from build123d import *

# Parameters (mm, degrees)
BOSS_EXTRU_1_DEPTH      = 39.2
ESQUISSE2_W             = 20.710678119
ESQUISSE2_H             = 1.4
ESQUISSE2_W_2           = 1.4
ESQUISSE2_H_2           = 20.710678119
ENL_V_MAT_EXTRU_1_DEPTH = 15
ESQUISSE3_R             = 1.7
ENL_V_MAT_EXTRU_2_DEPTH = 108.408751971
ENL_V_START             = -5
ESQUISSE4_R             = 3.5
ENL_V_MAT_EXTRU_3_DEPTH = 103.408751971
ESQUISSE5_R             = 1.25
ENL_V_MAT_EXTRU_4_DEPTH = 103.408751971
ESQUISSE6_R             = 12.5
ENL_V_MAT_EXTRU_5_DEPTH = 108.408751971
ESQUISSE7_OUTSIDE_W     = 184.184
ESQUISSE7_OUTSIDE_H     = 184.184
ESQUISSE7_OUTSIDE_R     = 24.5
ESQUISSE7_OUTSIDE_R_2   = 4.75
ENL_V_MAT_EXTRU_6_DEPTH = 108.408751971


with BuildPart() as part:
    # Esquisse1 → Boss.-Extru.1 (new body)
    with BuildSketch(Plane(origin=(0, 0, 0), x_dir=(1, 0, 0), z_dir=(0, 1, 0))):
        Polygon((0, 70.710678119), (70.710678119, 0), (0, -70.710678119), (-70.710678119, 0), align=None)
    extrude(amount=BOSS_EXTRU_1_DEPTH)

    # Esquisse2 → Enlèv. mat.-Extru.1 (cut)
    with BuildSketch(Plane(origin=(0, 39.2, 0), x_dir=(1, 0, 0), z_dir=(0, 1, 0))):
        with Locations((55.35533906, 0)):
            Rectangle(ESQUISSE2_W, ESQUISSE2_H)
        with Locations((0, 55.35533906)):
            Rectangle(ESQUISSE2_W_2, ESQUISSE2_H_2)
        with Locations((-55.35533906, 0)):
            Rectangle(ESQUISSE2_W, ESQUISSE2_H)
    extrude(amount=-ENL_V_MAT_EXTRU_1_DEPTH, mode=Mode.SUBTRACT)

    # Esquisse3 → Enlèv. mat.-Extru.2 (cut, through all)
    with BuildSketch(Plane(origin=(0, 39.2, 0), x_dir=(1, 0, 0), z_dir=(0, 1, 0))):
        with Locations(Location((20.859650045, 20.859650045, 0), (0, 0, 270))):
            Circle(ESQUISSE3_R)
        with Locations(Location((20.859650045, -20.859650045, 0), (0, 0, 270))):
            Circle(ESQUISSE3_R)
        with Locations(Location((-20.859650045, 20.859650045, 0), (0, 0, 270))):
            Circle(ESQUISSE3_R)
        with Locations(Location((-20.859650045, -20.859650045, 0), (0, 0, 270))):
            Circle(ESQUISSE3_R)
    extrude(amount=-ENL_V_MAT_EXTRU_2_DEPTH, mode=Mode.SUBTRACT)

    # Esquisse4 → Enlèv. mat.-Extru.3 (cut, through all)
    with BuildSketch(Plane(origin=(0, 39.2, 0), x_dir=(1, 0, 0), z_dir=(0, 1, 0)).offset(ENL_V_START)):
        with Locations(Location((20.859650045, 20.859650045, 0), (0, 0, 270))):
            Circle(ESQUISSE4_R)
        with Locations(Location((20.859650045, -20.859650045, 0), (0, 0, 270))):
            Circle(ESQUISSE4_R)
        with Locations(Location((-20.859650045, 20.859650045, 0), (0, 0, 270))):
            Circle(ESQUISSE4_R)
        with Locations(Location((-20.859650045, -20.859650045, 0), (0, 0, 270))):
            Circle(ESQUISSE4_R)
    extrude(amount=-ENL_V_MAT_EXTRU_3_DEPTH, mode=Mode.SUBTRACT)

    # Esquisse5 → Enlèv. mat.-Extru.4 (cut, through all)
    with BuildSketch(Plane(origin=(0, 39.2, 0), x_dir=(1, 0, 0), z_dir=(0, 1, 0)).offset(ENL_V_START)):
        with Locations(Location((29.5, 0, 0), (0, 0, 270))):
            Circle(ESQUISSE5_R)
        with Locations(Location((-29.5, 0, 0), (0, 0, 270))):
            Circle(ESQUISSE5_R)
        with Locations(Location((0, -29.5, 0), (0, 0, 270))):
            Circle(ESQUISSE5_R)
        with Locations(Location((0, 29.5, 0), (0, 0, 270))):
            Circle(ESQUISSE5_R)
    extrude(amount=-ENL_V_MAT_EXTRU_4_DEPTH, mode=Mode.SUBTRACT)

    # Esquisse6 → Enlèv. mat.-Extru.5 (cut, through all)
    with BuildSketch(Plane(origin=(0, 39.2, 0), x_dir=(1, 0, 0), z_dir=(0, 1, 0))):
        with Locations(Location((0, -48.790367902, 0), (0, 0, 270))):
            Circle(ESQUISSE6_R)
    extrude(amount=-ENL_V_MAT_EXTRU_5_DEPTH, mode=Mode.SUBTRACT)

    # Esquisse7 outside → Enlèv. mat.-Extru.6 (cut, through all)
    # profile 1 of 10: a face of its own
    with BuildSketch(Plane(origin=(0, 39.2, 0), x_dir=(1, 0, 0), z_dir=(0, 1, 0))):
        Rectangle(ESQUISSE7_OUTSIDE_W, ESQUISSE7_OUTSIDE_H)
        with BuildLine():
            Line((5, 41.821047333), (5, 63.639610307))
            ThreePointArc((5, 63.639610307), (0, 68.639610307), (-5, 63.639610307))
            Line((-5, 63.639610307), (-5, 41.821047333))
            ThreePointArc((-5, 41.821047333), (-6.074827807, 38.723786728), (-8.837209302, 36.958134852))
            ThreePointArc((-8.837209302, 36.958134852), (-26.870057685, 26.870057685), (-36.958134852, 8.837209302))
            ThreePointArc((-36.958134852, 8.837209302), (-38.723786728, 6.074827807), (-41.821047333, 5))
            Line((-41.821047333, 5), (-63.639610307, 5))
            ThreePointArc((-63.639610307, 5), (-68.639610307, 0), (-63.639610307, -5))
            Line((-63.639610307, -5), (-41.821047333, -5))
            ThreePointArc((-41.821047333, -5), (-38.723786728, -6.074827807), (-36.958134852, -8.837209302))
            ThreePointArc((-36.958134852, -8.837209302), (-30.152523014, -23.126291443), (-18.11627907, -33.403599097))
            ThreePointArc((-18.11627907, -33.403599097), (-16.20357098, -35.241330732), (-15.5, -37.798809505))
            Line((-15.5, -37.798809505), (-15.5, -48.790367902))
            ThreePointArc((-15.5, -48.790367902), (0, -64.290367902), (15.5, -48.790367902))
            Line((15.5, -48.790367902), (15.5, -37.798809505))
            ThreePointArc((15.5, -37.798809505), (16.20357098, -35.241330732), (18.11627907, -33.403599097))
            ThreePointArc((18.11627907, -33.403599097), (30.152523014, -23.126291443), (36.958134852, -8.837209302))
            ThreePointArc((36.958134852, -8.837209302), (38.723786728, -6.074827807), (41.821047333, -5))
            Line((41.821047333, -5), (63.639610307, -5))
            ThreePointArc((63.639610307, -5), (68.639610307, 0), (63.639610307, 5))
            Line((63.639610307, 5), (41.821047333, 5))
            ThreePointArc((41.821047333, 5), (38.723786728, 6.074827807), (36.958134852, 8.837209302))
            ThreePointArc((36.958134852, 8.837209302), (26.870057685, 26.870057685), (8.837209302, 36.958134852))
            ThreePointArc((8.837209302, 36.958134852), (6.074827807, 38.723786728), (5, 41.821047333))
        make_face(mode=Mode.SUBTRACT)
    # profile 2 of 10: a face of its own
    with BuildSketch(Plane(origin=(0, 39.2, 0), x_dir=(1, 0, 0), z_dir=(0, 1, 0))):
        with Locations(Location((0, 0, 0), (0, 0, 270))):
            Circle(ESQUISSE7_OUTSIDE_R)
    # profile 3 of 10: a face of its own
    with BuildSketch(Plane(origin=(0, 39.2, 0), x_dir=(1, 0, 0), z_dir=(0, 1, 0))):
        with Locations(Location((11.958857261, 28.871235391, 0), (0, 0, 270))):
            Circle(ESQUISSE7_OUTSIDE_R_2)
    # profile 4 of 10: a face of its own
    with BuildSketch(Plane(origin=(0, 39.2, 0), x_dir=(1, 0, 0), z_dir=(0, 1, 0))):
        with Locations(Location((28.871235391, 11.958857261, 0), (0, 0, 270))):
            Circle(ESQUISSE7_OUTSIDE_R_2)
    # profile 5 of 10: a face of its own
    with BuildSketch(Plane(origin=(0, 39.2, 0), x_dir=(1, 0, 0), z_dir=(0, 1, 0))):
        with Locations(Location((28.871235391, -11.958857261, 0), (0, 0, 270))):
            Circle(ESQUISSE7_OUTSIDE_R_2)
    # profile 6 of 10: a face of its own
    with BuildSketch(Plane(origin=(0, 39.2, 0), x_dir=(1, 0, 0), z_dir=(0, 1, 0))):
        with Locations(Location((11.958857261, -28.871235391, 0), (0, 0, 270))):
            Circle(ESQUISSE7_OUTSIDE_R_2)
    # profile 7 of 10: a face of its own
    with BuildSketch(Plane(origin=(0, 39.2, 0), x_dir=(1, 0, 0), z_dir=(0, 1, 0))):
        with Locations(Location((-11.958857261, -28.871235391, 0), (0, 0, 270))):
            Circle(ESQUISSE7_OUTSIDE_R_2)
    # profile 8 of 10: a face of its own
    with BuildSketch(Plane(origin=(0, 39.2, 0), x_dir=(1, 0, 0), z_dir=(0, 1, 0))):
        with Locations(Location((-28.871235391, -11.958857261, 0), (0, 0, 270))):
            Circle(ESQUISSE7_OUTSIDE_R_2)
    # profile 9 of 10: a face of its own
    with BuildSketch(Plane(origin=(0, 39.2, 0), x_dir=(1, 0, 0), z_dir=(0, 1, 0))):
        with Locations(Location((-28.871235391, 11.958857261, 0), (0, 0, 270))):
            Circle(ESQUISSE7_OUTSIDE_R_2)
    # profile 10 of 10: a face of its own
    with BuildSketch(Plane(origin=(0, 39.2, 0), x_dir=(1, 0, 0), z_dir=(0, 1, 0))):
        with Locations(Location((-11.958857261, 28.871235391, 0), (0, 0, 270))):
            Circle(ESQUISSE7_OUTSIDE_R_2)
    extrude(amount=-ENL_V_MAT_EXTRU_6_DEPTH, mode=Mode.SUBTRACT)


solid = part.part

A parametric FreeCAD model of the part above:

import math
import FreeCAD as App
import Part
import Sketcher
from FreeCAD import Vector

doc = App.newDocument("Part")
body = doc.addObject("PartDesign::Body", "Body")

# Sketch on XZ plane
sketch1 = body.newObject("Sketcher::SketchObject", "Sketch")
sketch1.AttachmentSupport = (doc.getObject("XZ_Plane"), [""])
sketch1.MapMode = "FlatFace"
sketch1.addGeometry([
    Part.LineSegment(Vector(71, 0, 0), Vector(0, -71, 0)),
    Part.LineSegment(Vector(0, -71, 0), Vector(-71, 0, 0)),
    Part.LineSegment(Vector(-71, 0, 0), Vector(0, 71, 0)),
    Part.LineSegment(Vector(0, 71, 0), Vector(71, 0, 0)),
], False)
sketch1.addConstraint([
    Sketcher.Constraint("Coincident", 0, 2, 1, 1),
    Sketcher.Constraint("Coincident", 1, 2, 2, 1),
    Sketcher.Constraint("Coincident", 2, 2, 3, 1),
    Sketcher.Constraint("Coincident", 3, 2, 0, 1),
    Sketcher.Constraint("Symmetric", 0, 2, 2, 2, -1, 1),
    Sketcher.Constraint("Symmetric", 1, 2, 3, 2, -1, 1),
    Sketcher.Constraint("PointOnObject", 0, 2, -2),
    Sketcher.Constraint("PointOnObject", 1, 2, -1),
    Sketcher.Constraint("Perpendicular", 0, 1),
    Sketcher.Constraint("Distance", 0, 100.0),
])
pad1 = body.newObject("PartDesign::Pad", "Pad")
pad1.Profile = sketch1
pad1.Length = 39.2
pad1.Reversed = True

# Sketch on XZ plane
sketch2 = body.newObject("Sketcher::SketchObject", "Sketch001")
sketch2.AttachmentSupport = (doc.getObject("XZ_Plane"), [""])
sketch2.MapMode = "FlatFace"
sketch2.AttachmentOffset = App.Placement(Vector(0, 0, -39.2), App.Rotation())
sketch2.addGeometry([
    Part.LineSegment(Vector(45, -0.7, 0), Vector(45, 0.7, 0)),  # 0
    Part.LineSegment(Vector(45, 0.7, 0), Vector(65.7, 0.7, 0)),  # 1
    Part.LineSegment(Vector(65.7, 0.7, 0), Vector(65.7, -0.7, 0)),  # 2
    Part.LineSegment(Vector(65.7, -0.7, 0), Vector(45, -0.7, 0)),  # 3
    Part.LineSegment(Vector(-0.7, -65.7, 0), Vector(-0.7, -45, 0)),  # 4
    Part.LineSegment(Vector(-0.7, -45, 0), Vector(0.7, -45, 0)),  # 5
    Part.LineSegment(Vector(0.7, -45, 0), Vector(0.7, -65.7, 0)),  # 6
    Part.LineSegment(Vector(0.7, -65.7, 0), Vector(-0.7, -65.7, 0)),  # 7
    Part.LineSegment(Vector(-65.7, -0.7, 0), Vector(-65.7, 0.7, 0)),  # 8
    Part.LineSegment(Vector(-65.7, 0.7, 0), Vector(-45, 0.7, 0)),  # 9
    Part.LineSegment(Vector(-45, 0.7, 0), Vector(-45, -0.7, 0)),  # 10
    Part.LineSegment(Vector(-45, -0.7, 0), Vector(-65.7, -0.7, 0)),  # 11
], False)
sketch2.addConstraint([
    Sketcher.Constraint("Coincident", 0, 2, 1, 1),
    Sketcher.Constraint("Coincident", 1, 2, 2, 1),
    Sketcher.Constraint("Coincident", 2, 2, 3, 1),
    Sketcher.Constraint("Coincident", 3, 2, 0, 1),
    Sketcher.Constraint("Coincident", 4, 2, 5, 1),
    Sketcher.Constraint("Coincident", 5, 2, 6, 1),
    Sketcher.Constraint("Coincident", 6, 2, 7, 1),
    Sketcher.Constraint("Coincident", 7, 2, 4, 1),
    Sketcher.Constraint("Coincident", 8, 2, 9, 1),
    Sketcher.Constraint("Coincident", 9, 2, 10, 1),
    Sketcher.Constraint("Coincident", 10, 2, 11, 1),
    Sketcher.Constraint("Coincident", 11, 2, 8, 1),
    Sketcher.Constraint("Vertical", 0),
    Sketcher.Constraint("Horizontal", 1),
    Sketcher.Constraint("Vertical", 2),
    Sketcher.Constraint("Horizontal", 3),
    Sketcher.Constraint("Vertical", 4),
    Sketcher.Constraint("Horizontal", 5),
    Sketcher.Constraint("Vertical", 6),
    Sketcher.Constraint("Horizontal", 7),
    Sketcher.Constraint("Vertical", 8),
    Sketcher.Constraint("Horizontal", 9),
    Sketcher.Constraint("Vertical", 10),
    Sketcher.Constraint("Horizontal", 11),
    Sketcher.Constraint("Symmetric", 2, 2, 8, 2, -1, 1),
    Sketcher.Constraint("Symmetric", 0, 2, 10, 2, -1, 1),
    Sketcher.Constraint("Horizontal", 1, 2, 8, 2),
    Sketcher.Constraint("Equal", 7, 0),
    Sketcher.Constraint("Equal", 11, 4),
    Sketcher.Constraint("DistanceX", 5, 1, 5, 2, 1.4),
    Sketcher.Constraint("DistanceX", -1, 1, 0, 2, 45.0),
    Sketcher.Constraint("DistanceY", 4, 2, -1, 1, 45.0),
    Sketcher.Constraint("DistanceX", 4, 2, -1, 1, 0.7),
    Sketcher.Constraint("DistanceX", 1, 1, 1, 2, 20.710678),
])
pocket1 = body.newObject("PartDesign::Pocket", "Pocket")
pocket1.Profile = sketch2
pocket1.Length = 15
pocket1.Reversed = True

# Sketch on XZ plane
sketch3 = body.newObject("Sketcher::SketchObject", "Sketch002")
sketch3.AttachmentSupport = (doc.getObject("XZ_Plane"), [""])
sketch3.MapMode = "FlatFace"
sketch3.AttachmentOffset = App.Placement(Vector(0, 0, -39.2), App.Rotation())
sketch3.addGeometry([
    Part.Circle(Vector(20.9, -20.9, 0), Vector(0, 0, 1), 1.7),
    Part.Circle(Vector(20.9, 20.9, 0), Vector(0, 0, 1), 1.7),
    Part.Circle(Vector(-20.9, -20.9, 0), Vector(0, 0, 1), 1.7),
    Part.Circle(Vector(-20.9, 20.9, 0), Vector(0, 0, 1), 1.7),
], False)
sketch3.addConstraint([
    Sketcher.Constraint("Equal", 0, 1),
    Sketcher.Constraint("Equal", 1, 2),
    Sketcher.Constraint("Equal", 2, 3),
    Sketcher.Constraint("Symmetric", 1, 3, 2, 3, -1, 1),
    Sketcher.Constraint("Symmetric", 0, 3, 3, 3, -1, 1),
    Sketcher.Constraint("Symmetric", 0, 3, 2, 3, -2),
    Sketcher.Constraint("Diameter", 0, 3.4),
    Sketcher.Constraint("DistanceY", 0, 3, 1, 3, 41.7193),
    Sketcher.Constraint("DistanceX", 2, 3, 0, 3, 41.7193),
])
pocket2 = body.newObject("PartDesign::Pocket", "Pocket001")
pocket2.Profile = sketch3
pocket2.Type = "ThroughAll"
pocket2.Reversed = True

# Sketch on XZ plane
sketch4 = body.newObject("Sketcher::SketchObject", "Sketch003")
sketch4.AttachmentSupport = (doc.getObject("XZ_Plane"), [""])
sketch4.MapMode = "FlatFace"
sketch4.AttachmentOffset = App.Placement(Vector(0, 0, -34.2), App.Rotation())
sketch4.addGeometry([
    Part.Circle(Vector(20.9, -20.9, 0), Vector(0, 0, 1), 3.5),
    Part.Circle(Vector(20.9, 20.9, 0), Vector(0, 0, 1), 3.5),
    Part.Circle(Vector(-20.9, -20.9, 0), Vector(0, 0, 1), 3.5),
    Part.Circle(Vector(-20.9, 20.9, 0), Vector(0, 0, 1), 3.5),
], False)
sketch4.addConstraint([
    Sketcher.Constraint("Equal", 0, 1),
    Sketcher.Constraint("Equal", 1, 2),
    Sketcher.Constraint("Equal", 2, 3),
    Sketcher.Constraint("Symmetric", 1, 3, 2, 3, -1, 1),
    Sketcher.Constraint("Symmetric", 0, 3, 3, 3, -1, 1),
    Sketcher.Constraint("Symmetric", 0, 3, 2, 3, -2),
    Sketcher.Constraint("Diameter", 0, 7.0),
    Sketcher.Constraint("DistanceY", 0, 3, 1, 3, 41.7193),
    Sketcher.Constraint("DistanceX", 2, 3, 0, 3, 41.7193),
])
pocket3 = body.newObject("PartDesign::Pocket", "Pocket002")
pocket3.Profile = sketch4
pocket3.Type = "ThroughAll"
pocket3.Reversed = True

# Sketch on XZ plane
sketch5 = body.newObject("Sketcher::SketchObject", "Sketch004")
sketch5.AttachmentSupport = (doc.getObject("XZ_Plane"), [""])
sketch5.MapMode = "FlatFace"
sketch5.AttachmentOffset = App.Placement(Vector(0, 0, -34.2), App.Rotation())
sketch5.addGeometry([
    Part.Circle(Vector(29.5, 0, 0), Vector(0, 0, 1), 1.2),
    Part.Circle(Vector(-29.5, 0, 0), Vector(0, 0, 1), 1.2),
    Part.Circle(Vector(0, 29.5, 0), Vector(0, 0, 1), 1.2),
    Part.Circle(Vector(0, -29.5, 0), Vector(0, 0, 1), 1.2),
], False)
sketch5.addConstraint([
    Sketcher.Constraint("Equal", 0, 1),
    Sketcher.Constraint("Equal", 1, 2),
    Sketcher.Constraint("Equal", 2, 3),
    Sketcher.Constraint("Symmetric", 0, 3, 1, 3, -1, 1),
    Sketcher.Constraint("Symmetric", 2, 3, 3, 3, -1, 1),
    Sketcher.Constraint("PointOnObject", 0, 3, -1),
    Sketcher.Constraint("PointOnObject", 2, 3, -2),
    Sketcher.Constraint("Diameter", 0, 2.5),
    Sketcher.Constraint("DistanceX", 1, 3, 0, 3, 59.0),
    Sketcher.Constraint("DistanceY", 3, 3, 2, 3, 59.0),
])
pocket4 = body.newObject("PartDesign::Pocket", "Pocket003")
pocket4.Profile = sketch5
pocket4.Type = "ThroughAll"
pocket4.Reversed = True

# Sketch on XZ plane
sketch6 = body.newObject("Sketcher::SketchObject", "Sketch005")
sketch6.AttachmentSupport = (doc.getObject("XZ_Plane"), [""])
sketch6.MapMode = "FlatFace"
sketch6.AttachmentOffset = App.Placement(Vector(0, 0, -39.2), App.Rotation())
sketch6.addGeometry(Part.Circle(Vector(0, 49, 0), Vector(0, 0, 1), 12), False)
sketch6.addConstraint([
    Sketcher.Constraint("PointOnObject", 0, 3, -2),
    Sketcher.Constraint("Diameter", 0, 25.0),
    Sketcher.Constraint("DistanceY", -1, 1, 0, 3, 48.790368),
])
pocket5 = body.newObject("PartDesign::Pocket", "Pocket004")
pocket5.Profile = sketch6
pocket5.Type = "ThroughAll"
pocket5.Reversed = True

# Sketch on XZ plane
sketch7 = body.newObject("Sketcher::SketchObject", "Sketch006")
sketch7.AttachmentSupport = (doc.getObject("XZ_Plane"), [""])
sketch7.MapMode = "FlatFace"
sketch7.AttachmentOffset = App.Placement(Vector(0, 0, -39.2), App.Rotation())
sketch7.addGeometry([
    Part.LineSegment(Vector(-92.1, -92.1, 0), Vector(-92.1, 92.1, 0)),  # 0
    Part.LineSegment(Vector(-92.1, 92.1, 0), Vector(92.1, 92.1, 0)),  # 1
    Part.LineSegment(Vector(92.1, 92.1, 0), Vector(92.1, -92.1, 0)),  # 2
    Part.LineSegment(Vector(92.1, -92.1, 0), Vector(-92.1, -92.1, 0)),  # 3
    Part.LineSegment(Vector(5, -63.6, 0), Vector(5, -41.8, 0)),  # 4
    Part.ArcOfCircle(Part.Circle(Vector(10, -41.8, 0), Vector(0, 0, 1), 5), math.radians(103), math.radians(180)),  # 5
    Part.ArcOfCircle(Part.Circle(Vector(0, 0, 0), Vector(0, 0, 1), 38), math.radians(-77), math.radians(-13)),  # 6
    Part.ArcOfCircle(Part.Circle(Vector(41.8, -10, 0), Vector(0, 0, 1), 5), math.radians(90), math.radians(167)),  # 7
    Part.LineSegment(Vector(41.8, -5, 0), Vector(63.6, -5, 0)),  # 8
    Part.ArcOfCircle(Part.Circle(Vector(63.6, 0, 0), Vector(0, 0, 1), 5), math.radians(-90), math.radians(90)),  # 9
    Part.LineSegment(Vector(63.6, 5, 0), Vector(41.8, 5, 0)),  # 10
    Part.ArcOfCircle(Part.Circle(Vector(41.8, 10, 0), Vector(0, 0, 1), 5), math.radians(-167), math.radians(-90)),  # 11
    Part.ArcOfCircle(Part.Circle(Vector(0, 0, 0), Vector(0, 0, 1), 38), math.radians(13), math.radians(62)),  # 12
    Part.ArcOfCircle(Part.Circle(Vector(20.5, 37.8, 0), Vector(0, 0, 1), 5), math.radians(-180), math.radians(-118)),  # 13
    Part.LineSegment(Vector(15.5, 37.8, 0), Vector(15.5, 48.8, 0)),  # 14
    Part.ArcOfCircle(Part.Circle(Vector(0, 48.8, 0), Vector(0, 0, 1), 15.5), math.radians(0), math.radians(180)),  # 15
    Part.LineSegment(Vector(-15.5, 48.8, 0), Vector(-15.5, 37.8, 0)),  # 16
    Part.ArcOfCircle(Part.Circle(Vector(-20.5, 37.8, 0), Vector(0, 0, 1), 5), math.radians(-62), math.radians(0)),  # 17
    Part.ArcOfCircle(Part.Circle(Vector(0, 0, 0), Vector(0, 0, 1), 38), math.radians(118), math.radians(167)),  # 18
    Part.ArcOfCircle(Part.Circle(Vector(-41.8, 10, 0), Vector(0, 0, 1), 5), math.radians(-90), math.radians(-13)),  # 19
    Part.LineSegment(Vector(-41.8, 5, 0), Vector(-63.6, 5, 0)),  # 20
    Part.ArcOfCircle(Part.Circle(Vector(-63.6, 0, 0), Vector(0, 0, 1), 5), math.radians(90), math.radians(270)),  # 21
    Part.LineSegment(Vector(-63.6, -5, 0), Vector(-41.8, -5, 0)),  # 22
    Part.ArcOfCircle(Part.Circle(Vector(-41.8, -10, 0), Vector(0, 0, 1), 5), math.radians(13), math.radians(90)),  # 23
    Part.ArcOfCircle(Part.Circle(Vector(0, 0, 0), Vector(0, 0, 1), 38), math.radians(-167), math.radians(-103)),  # 24
    Part.ArcOfCircle(Part.Circle(Vector(-10, -41.8, 0), Vector(0, 0, 1), 5), math.radians(0), math.radians(77)),  # 25
    Part.LineSegment(Vector(-5, -41.8, 0), Vector(-5, -63.6, 0)),  # 26
    Part.ArcOfCircle(Part.Circle(Vector(0, -63.6, 0), Vector(0, 0, 1), 5), math.radians(180), math.radians(360)),  # 27
    Part.Circle(Vector(0, 0, 0), Vector(0, 0, 1), 24.5),  # 28
    Part.Circle(Vector(12, -28.9, 0), Vector(0, 0, 1), 4.8),  # 29
    Part.Circle(Vector(28.9, -12, 0), Vector(0, 0, 1), 4.8),  # 30
    Part.Circle(Vector(28.9, 12, 0), Vector(0, 0, 1), 4.8),  # 31
    Part.Circle(Vector(12, 28.9, 0), Vector(0, 0, 1), 4.8),  # 32
    Part.Circle(Vector(-12, 28.9, 0), Vector(0, 0, 1), 4.8),  # 33
    Part.Circle(Vector(-28.9, 12, 0), Vector(0, 0, 1), 4.8),  # 34
    Part.Circle(Vector(-28.9, -12, 0), Vector(0, 0, 1), 4.8),  # 35
    Part.Circle(Vector(-12, -28.9, 0), Vector(0, 0, 1), 4.8),  # 36
], False)
sketch7.addConstraint([
    Sketcher.Constraint("Coincident", 0, 2, 1, 1),
    Sketcher.Constraint("Coincident", 1, 2, 2, 1),
    Sketcher.Constraint("Coincident", 2, 2, 3, 1),
    Sketcher.Constraint("Coincident", 3, 2, 0, 1),
    Sketcher.Constraint("Tangent", 4, 2, 5, 2),
    Sketcher.Constraint("Tangent", 5, 1, 6, 1),
    Sketcher.Constraint("Tangent", 6, 2, 7, 2),
    Sketcher.Constraint("Tangent", 7, 1, 8, 1),
    Sketcher.Constraint("Tangent", 8, 2, 9, 1),
    Sketcher.Constraint("Tangent", 9, 2, 10, 1),
    Sketcher.Constraint("Tangent", 10, 2, 11, 2),
    Sketcher.Constraint("Tangent", 11, 1, 12, 1),
    Sketcher.Constraint("Tangent", 12, 2, 13, 2),
    Sketcher.Constraint("Tangent", 13, 1, 14, 1),
    Sketcher.Constraint("Tangent", 14, 2, 15, 1),
    Sketcher.Constraint("Tangent", 15, 2, 16, 1),
    Sketcher.Constraint("Tangent", 16, 2, 17, 2),
    Sketcher.Constraint("Tangent", 17, 1, 18, 1),
    Sketcher.Constraint("Tangent", 18, 2, 19, 2),
    Sketcher.Constraint("Tangent", 19, 1, 20, 1),
    Sketcher.Constraint("Tangent", 20, 2, 21, 1),
    Sketcher.Constraint("Tangent", 21, 2, 22, 1),
    Sketcher.Constraint("Tangent", 22, 2, 23, 2),
    Sketcher.Constraint("Tangent", 23, 1, 24, 1),
    Sketcher.Constraint("Tangent", 24, 2, 25, 2),
    Sketcher.Constraint("Tangent", 25, 1, 26, 1),
    Sketcher.Constraint("Tangent", 26, 2, 27, 1),
    Sketcher.Constraint("Tangent", 27, 2, 4, 1),
    Sketcher.Constraint("Vertical", 0),
    Sketcher.Constraint("Horizontal", 1),
    Sketcher.Constraint("Vertical", 2),
    Sketcher.Constraint("Horizontal", 3),
    Sketcher.Constraint("Vertical", 4),
    Sketcher.Constraint("Horizontal", 8),
    Sketcher.Constraint("Horizontal", 10),
    Sketcher.Constraint("Vertical", 14),
    Sketcher.Constraint("Vertical", 16),
    Sketcher.Constraint("Horizontal", 20),
    Sketcher.Constraint("Horizontal", 22),
    Sketcher.Constraint("Vertical", 26),
    Sketcher.Constraint("Coincident", 6, 3, -1, 1),
    Sketcher.Constraint("Coincident", 12, 3, -1, 1),
    Sketcher.Constraint("Coincident", 18, 3, -1, 1),
    Sketcher.Constraint("Coincident", 24, 3, -1, 1),
    Sketcher.Constraint("Coincident", 28, 3, -1, 1),
    Sketcher.Constraint("Equal", 5, 7),
    Sketcher.Constraint("Equal", 7, 9),
    Sketcher.Constraint("Equal", 9, 11),
    Sketcher.Constraint("Equal", 6, 12),
    Sketcher.Constraint("Equal", 11, 13),
    Sketcher.Constraint("Equal", 13, 17),
    Sketcher.Constraint("Equal", 12, 18),
    Sketcher.Constraint("Equal", 17, 19),
    Sketcher.Constraint("Equal", 19, 21),
    Sketcher.Constraint("Equal", 21, 23),
    Sketcher.Constraint("Equal", 18, 24),
    Sketcher.Constraint("Equal", 23, 25),
    Sketcher.Constraint("Equal", 25, 27),
    Sketcher.Constraint("Equal", 29, 30),
    Sketcher.Constraint("Equal", 30, 31),
    Sketcher.Constraint("Equal", 31, 32),
    Sketcher.Constraint("Equal", 32, 33),
    Sketcher.Constraint("Equal", 33, 34),
    Sketcher.Constraint("Equal", 34, 35),
    Sketcher.Constraint("Equal", 35, 36),
    Sketcher.Constraint("Symmetric", 9, 3, 21, 3, -1, 1),
    Sketcher.Constraint("Symmetric", 29, 3, 33, 3, -1, 1),
    Sketcher.Constraint("Symmetric", 30, 3, 34, 3, -1, 1),
    Sketcher.Constraint("Symmetric", 31, 3, 35, 3, -1, 1),
    Sketcher.Constraint("Symmetric", 32, 3, 36, 3, -1, 1),
    Sketcher.Constraint("Symmetric", 0, 2, 2, 2, -1, 1),
    Sketcher.Constraint("Symmetric", 32, 3, 33, 3, -2),
    Sketcher.Constraint("Symmetric", 31, 3, 34, 3, -2),
    Sketcher.Constraint("PointOnObject", 9, 3, -1),
    Sketcher.Constraint("PointOnObject", 15, 3, -2),
    Sketcher.Constraint("PointOnObject", 27, 3, -2),
    Sketcher.Constraint("Equal", 3, 0),
    Sketcher.Constraint("Equal", 22, 4),
    Sketcher.Constraint("Diameter", 28, 49.0),
    Sketcher.Constraint("Radius", 5, 5.0),
    Sketcher.Constraint("Radius", 6, 38.0),
    Sketcher.Constraint("Diameter", 29, 9.5),
    Sketcher.Constraint("Radius", 15, 15.5),
    Sketcher.Constraint("DistanceX", 1, 1, 1, 2, 184.184),
    Sketcher.Constraint("DistanceY", 14, 1, 14, 2, 10.991558),
    Sketcher.Constraint("DistanceY", 5, 1, 29, 3, 8.086899),
    Sketcher.Constraint("DistanceX", 30, 3, 6, 2, 8.086899),
    Sketcher.Constraint("DistanceX", 8, 1, 8, 2, 21.818563),
    Sketcher.Constraint("DistanceX", 29, 3, 30, 3, 16.912378),
    Sketcher.Constraint("DistanceY", 29, 3, 30, 3, 16.912378),
])
pocket6 = body.newObject("PartDesign::Pocket", "Pocket005")
pocket6.Profile = sketch7
pocket6.Length = 108.408752
pocket6.Reversed = True

doc.recompute()
